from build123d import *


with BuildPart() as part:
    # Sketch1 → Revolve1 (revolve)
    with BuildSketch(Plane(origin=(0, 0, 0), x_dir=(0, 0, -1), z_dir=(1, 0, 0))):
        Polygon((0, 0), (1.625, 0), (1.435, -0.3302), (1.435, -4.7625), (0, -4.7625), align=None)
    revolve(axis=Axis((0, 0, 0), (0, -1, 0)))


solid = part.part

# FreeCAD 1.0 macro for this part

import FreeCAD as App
import Part
import Sketcher

V = App.Vector
Q = App.Units.Quantity


def add_polygon(sketch, points):
    """Adds a closed chain of lines whose ends are joined by coincident constraints."""
    first, n = sketch.GeometryCount, len(points)
    for a, b in zip(points, points[1:] + points[:1]):
        sketch.addGeometry(Part.LineSegment(App.Vector(*a, 0), App.Vector(*b, 0)), False)
    for i in range(n):
        sketch.addConstraint(Sketcher.Constraint("Coincident", first + i, 2, first + (i + 1) % n, 1))

doc = App.newDocument("Part")
body = doc.addObject("PartDesign::Body", "Body")

# Sketch on YZ plane
sketch1 = doc.addObject("Sketcher::SketchObject", "Sketch")
body.addObject(sketch1)
sketch1.AttachmentSupport = (doc.YZ_Plane, [""])
sketch1.MapMode = "FlatFace"
add_polygon(sketch1, [(0, -1.62), (0, 0), (-4.76, 0), (-4.76, -1.44), (-0.33, -1.44)])  # lines 0-4
sketch1.addConstraint(Sketcher.Constraint("Vertical", 0))
sketch1.addConstraint(Sketcher.Constraint("Horizontal", 1))
sketch1.addConstraint(Sketcher.Constraint("Vertical", 2))
sketch1.addConstraint(Sketcher.Constraint("Horizontal", 3))
sketch1.addConstraint(Sketcher.Constraint("Coincident", 0, 2, -1, 1))
sketch1.addConstraint(Sketcher.Constraint("DistanceX", 1, 2, 1, 1, Q("0.1875 in")))
sketch1.addConstraint(Sketcher.Constraint("DistanceX", 3, 1, 3, 2, Q("0.1745 in")))
sketch1.addConstraint(Sketcher.Constraint("DistanceY", 0, 1, 0, 2, 1.625))
sketch1.addConstraint(Sketcher.Constraint("DistanceY", 2, 2, 2, 1, 1.435))
revolution = doc.addObject("PartDesign::Revolution", "Revolution")
body.addObject(revolution)
revolution.Profile = sketch1
revolution.ReferenceAxis = (sketch1, ["H_Axis"])
revolution.Angle = 360

doc.recompute()
